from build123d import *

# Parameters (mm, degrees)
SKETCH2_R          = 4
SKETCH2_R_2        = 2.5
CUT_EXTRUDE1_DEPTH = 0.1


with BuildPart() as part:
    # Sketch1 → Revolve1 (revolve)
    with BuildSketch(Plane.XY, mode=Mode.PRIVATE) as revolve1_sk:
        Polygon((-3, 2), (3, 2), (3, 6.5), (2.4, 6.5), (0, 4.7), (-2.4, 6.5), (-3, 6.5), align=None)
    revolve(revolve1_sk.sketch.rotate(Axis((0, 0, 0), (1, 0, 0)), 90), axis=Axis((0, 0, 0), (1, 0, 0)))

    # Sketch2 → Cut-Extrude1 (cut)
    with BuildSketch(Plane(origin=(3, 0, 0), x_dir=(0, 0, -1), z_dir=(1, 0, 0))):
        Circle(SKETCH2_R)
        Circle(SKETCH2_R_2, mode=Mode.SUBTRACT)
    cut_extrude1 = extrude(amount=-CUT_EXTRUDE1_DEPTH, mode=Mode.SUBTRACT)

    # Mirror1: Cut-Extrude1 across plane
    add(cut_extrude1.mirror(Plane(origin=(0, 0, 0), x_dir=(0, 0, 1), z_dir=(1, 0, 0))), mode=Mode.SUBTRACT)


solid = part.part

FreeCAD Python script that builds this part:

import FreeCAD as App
import Part
import Sketcher
from FreeCAD import Vector
Q = App.Units.Quantity


def add_polygon(sketch, points):
    """Adds a closed chain of lines whose ends are joined by coincident constraints."""
    first, n = sketch.GeometryCount, len(points)
    for a, b in zip(points, points[1:] + points[:1]):
        sketch.addGeometry(Part.LineSegment(App.Vector(*a, 0), App.Vector(*b, 0)), False)
    for i in range(n):
        sketch.addConstraint(Sketcher.Constraint("Coincident", first + i, 2, first + (i + 1) % n, 1))

doc = App.newDocument("Part")
params = doc.addObject("Spreadsheet::Sheet", "Params")
for row, (alias, value) in enumerate([
    ("sketch1_width", "6 mm"),
    ("sketch1_length", "3 mm"),
    ("sketch1_width2", "0.6 mm"),
    ("sketch1_height", "4.5 mm"),
    ("revolution_angle", "360 deg"),
    ("sketch2_diameter", "8 mm"),
    ("sketch2_diameter2", "5 mm"),
    ("pocket1_length", "0.1 mm"),
], start=1):
    params.set(f"A{row}", alias)
    params.set(f"B{row}", "=" + value)
    params.setAlias(f"B{row}", alias)

body = doc.addObject("PartDesign::Body", "Body")

# Sketch on XY plane
sketch1 = body.newObject("Sketcher::SketchObject", "Sketch")
sketch1.AttachmentSupport = (doc.getObject("XY_Plane"), [""])
sketch1.MapMode = "FlatFace"
add_polygon(sketch1, [(-3, 2), (3, 2), (3, 6.5), (2.4, 6.5), (0, 4.7), (-2.4, 6.5), (-3, 6.5)])  # lines 0-6
sketch1.addConstraint(Sketcher.Constraint("Horizontal", 0))
sketch1.addConstraint(Sketcher.Constraint("Vertical", 1))
sketch1.addConstraint(Sketcher.Constraint("Horizontal", 2))
sketch1.addConstraint(Sketcher.Constraint("Horizontal", 5))
sketch1.addConstraint(Sketcher.Constraint("Vertical", 6))
sketch1.addConstraint(Sketcher.Constraint("Symmetric", 2, 2, 4, 2, -2))
sketch1.addConstraint(Sketcher.Constraint("PointOnObject", 3, 2, -2))
sketch1.addConstraint(Sketcher.Constraint("Equal", 2, 5))
sketch1.addConstraint(Sketcher.Constraint("DistanceX", 0, 1, 0, 2, Q("6 mm")))
sketch1.addConstraint(Sketcher.Constraint("Distance", 3, Q("3 mm")))
sketch1.addConstraint(Sketcher.Constraint("DistanceX", 2, 2, 2, 1, Q("0.6 mm")))
sketch1.addConstraint(Sketcher.Constraint("DistanceY", 1, 1, 1, 2, Q("4.5 mm")))
sketch1.addConstraint(Sketcher.Constraint("DistanceY", -1, 1, 0, 2, Q("2 mm")))
sketch1.setExpression("Constraints[15]", "Params.sketch1_width")
sketch1.setExpression("Constraints[16]", "Params.sketch1_length")
sketch1.setExpression("Constraints[17]", "Params.sketch1_width2")
sketch1.setExpression("Constraints[18]", "Params.sketch1_height")
revolution = body.newObject("PartDesign::Revolution", "Revolution")
revolution.Profile = sketch1
revolution.ReferenceAxis = (sketch1, ["H_Axis"])
revolution.setExpression("Angle", "Params.revolution_angle")

# Sketch on YZ plane
sketch2 = body.newObject("Sketcher::SketchObject", "Sketch001")
sketch2.AttachmentSupport = (doc.getObject("YZ_Plane"), [""])
sketch2.MapMode = "FlatFace"
sketch2.AttachmentOffset = App.Placement(Vector(0, 0, 3), App.Rotation())
sketch2.addGeometry(Part.Circle(Vector(0, 0, 0), Vector(0, 0, 1), 4), False)
sketch2.addGeometry(Part.Circle(Vector(0, 0, 0), Vector(0, 0, 1), 2.5), False)
sketch2.addConstraint(Sketcher.Constraint("Coincident", 0, 3, -1, 1))
sketch2.addConstraint(Sketcher.Constraint("Coincident", 1, 3, -1, 1))
sketch2.addConstraint(Sketcher.Constraint("Diameter", 0, Q("8 mm")))
sketch2.addConstraint(Sketcher.Constraint("Diameter", 1, Q("5 mm")))
sketch2.setExpression("Constraints[2]", "Params.sketch2_diameter")
sketch2.setExpression("Constraints[3]", "Params.sketch2_diameter2")
pocket1 = body.newObject("PartDesign::Pocket", "Pocket")
pocket1.Profile = sketch2
pocket1.setExpression("Length", "Params.pocket1_length")
doc.recompute()

mirrored = body.newObject("PartDesign::Mirrored", "Mirrored")
mirrored.Originals = [pocket1]
mirrored.MirrorPlane = (doc.getObject("YZ_Plane"), [""])
body.Tip = mirrored

doc.recompute()
